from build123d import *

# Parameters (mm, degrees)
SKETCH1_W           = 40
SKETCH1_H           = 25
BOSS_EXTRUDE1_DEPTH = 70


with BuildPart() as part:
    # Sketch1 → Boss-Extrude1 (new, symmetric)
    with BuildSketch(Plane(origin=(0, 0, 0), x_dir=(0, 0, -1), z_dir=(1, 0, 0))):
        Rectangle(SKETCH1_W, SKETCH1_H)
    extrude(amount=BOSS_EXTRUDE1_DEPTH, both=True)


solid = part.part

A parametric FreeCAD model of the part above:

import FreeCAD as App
import Part
import Sketcher

V = App.Vector


def add_polygon(sketch, points):
    """Adds a closed chain of lines whose ends are joined by coincident constraints."""
    first, n = sketch.GeometryCount, len(points)
    for a, b in zip(points, points[1:] + points[:1]):
        sketch.addGeometry(Part.LineSegment(App.Vector(*a, 0), App.Vector(*b, 0)), False)
    for i in range(n):
        sketch.addConstraint(Sketcher.Constraint("Coincident", first + i, 2, first + (i + 1) % n, 1))

doc = App.newDocument("Part")
body = doc.addObject("PartDesign::Body", "Body")

# Sketch on YZ plane
sketch1 = body.newObject("Sketcher::SketchObject", "Sketch")
sketch1.AttachmentSupport = (doc.getObject("YZ_Plane"), [""])
sketch1.MapMode = "FlatFace"
add_polygon(sketch1, [(12, 20), (-12, 20), (-12, -20), (12, -20)])  # lines 0-3
sketch1.addConstraint(Sketcher.Constraint("Horizontal", 0))
sketch1.addConstraint(Sketcher.Constraint("Vertical", 1))
sketch1.addConstraint(Sketcher.Constraint("Horizontal", 2))
sketch1.addConstraint(Sketcher.Constraint("Vertical", 3))
sketch1.addConstraint(Sketcher.Constraint("Symmetric", 0, 2, 2, 2, -1, 1))
sketch1.addConstraint(Sketcher.Constraint("DistanceX", 0, 2, 0, 1, 25.0))
sketch1.addConstraint(Sketcher.Constraint("DistanceY", 1, 2, 1, 1, 40.0))
pad1 = body.newObject("PartDesign::Pad", "Pad")
pad1.Profile = sketch1
pad1.Length = 140
pad1.Midplane = True

doc.recompute()
